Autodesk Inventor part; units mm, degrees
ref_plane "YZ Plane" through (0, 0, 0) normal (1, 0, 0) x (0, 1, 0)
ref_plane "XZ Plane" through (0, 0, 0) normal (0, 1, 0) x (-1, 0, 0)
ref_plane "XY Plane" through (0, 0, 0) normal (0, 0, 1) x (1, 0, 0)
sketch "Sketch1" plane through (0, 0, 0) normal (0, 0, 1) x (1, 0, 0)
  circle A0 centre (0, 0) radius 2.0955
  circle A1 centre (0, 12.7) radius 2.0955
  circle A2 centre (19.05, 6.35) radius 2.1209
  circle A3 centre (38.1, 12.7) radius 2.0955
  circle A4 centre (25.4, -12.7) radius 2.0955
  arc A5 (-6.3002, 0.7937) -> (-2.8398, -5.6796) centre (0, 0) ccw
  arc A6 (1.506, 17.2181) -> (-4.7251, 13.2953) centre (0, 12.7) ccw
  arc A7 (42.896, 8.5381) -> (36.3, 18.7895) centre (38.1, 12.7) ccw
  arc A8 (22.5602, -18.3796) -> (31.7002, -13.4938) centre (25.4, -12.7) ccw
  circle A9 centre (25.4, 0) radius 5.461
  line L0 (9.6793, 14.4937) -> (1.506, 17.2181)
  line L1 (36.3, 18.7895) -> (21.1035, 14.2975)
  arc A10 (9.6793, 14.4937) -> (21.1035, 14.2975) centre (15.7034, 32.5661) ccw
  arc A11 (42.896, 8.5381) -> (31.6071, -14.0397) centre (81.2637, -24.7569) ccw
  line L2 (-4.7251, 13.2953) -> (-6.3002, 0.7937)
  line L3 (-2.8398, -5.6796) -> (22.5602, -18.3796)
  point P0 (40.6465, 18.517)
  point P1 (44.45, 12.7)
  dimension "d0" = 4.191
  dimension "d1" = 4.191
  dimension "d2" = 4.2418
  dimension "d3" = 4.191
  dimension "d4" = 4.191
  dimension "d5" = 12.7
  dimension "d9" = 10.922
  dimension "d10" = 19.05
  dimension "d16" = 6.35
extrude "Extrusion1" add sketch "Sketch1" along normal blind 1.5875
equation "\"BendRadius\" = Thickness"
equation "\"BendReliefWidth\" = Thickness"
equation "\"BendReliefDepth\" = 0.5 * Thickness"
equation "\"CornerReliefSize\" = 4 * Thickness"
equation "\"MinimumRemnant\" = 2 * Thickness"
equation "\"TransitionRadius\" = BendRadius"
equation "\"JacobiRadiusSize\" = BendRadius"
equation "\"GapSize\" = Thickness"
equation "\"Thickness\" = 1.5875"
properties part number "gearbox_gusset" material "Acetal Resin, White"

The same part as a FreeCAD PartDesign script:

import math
import FreeCAD as App
import Part
import Sketcher
Q = App.Units.Quantity

doc = App.newDocument("Part")
body = doc.addObject("PartDesign::Body", "Body")

# Sketch on XY plane
sketch1 = body.newObject("Sketcher::SketchObject", "Sketch")
sketch1.AttachmentSupport = (doc.getObject("XY_Plane"), [""])
sketch1.MapMode = "FlatFace"
sketch1.addGeometry(Part.LineSegment(App.Vector(-4.7, 13.3, 0), App.Vector(-6.3, 0.8, 0)), False)
sketch1.addGeometry(Part.ArcOfCircle(Part.Circle(App.Vector(0, 0, 0), App.Vector(0, 0, 1), 6.3), math.radians(173), math.radians(243)), False)
sketch1.addGeometry(Part.LineSegment(App.Vector(-2.8, -5.7, 0), App.Vector(22.6, -18.4, 0)), False)
sketch1.addGeometry(Part.ArcOfCircle(Part.Circle(App.Vector(25.4, -12.7, 0), App.Vector(0, 0, 1), 6.3), math.radians(-117), math.radians(-12)), False)
sketch1.addGeometry(Part.ArcOfCircle(Part.Circle(App.Vector(81.3, -24.8, 0), App.Vector(0, 0, 1), 50.8), math.radians(139), math.radians(168)), False)
sketch1.addGeometry(Part.ArcOfCircle(Part.Circle(App.Vector(38.1, 12.7, 0), App.Vector(0, 0, 1), 6.4), math.radians(-41), math.radians(106)), False)
sketch1.addGeometry(Part.LineSegment(App.Vector(36.3, 18.8, 0), App.Vector(21.1, 14.3, 0)), False)
sketch1.addGeometry(Part.ArcOfCircle(Part.Circle(App.Vector(15.7, 32.6, 0), App.Vector(0, 0, 1), 19), math.radians(-108), math.radians(-74)), False)
sketch1.addGeometry(Part.LineSegment(App.Vector(9.7, 14.5, 0), App.Vector(1.5, 17.2, 0)), False)
sketch1.addGeometry(Part.ArcOfCircle(Part.Circle(App.Vector(0, 12.7, 0), App.Vector(0, 0, 1), 4.8), math.radians(72), math.radians(173)), False)
sketch1.addGeometry(Part.Circle(App.Vector(25.4, -12.7, 0), App.Vector(0, 0, 1), 2.1), False)
sketch1.addGeometry(Part.Circle(App.Vector(0, 0, 0), App.Vector(0, 0, 1), 2.1), False)
sketch1.addGeometry(Part.Circle(App.Vector(19.1, 6.3, 0), App.Vector(0, 0, 1), 2.1), False)
sketch1.addGeometry(Part.Circle(App.Vector(0, 12.7, 0), App.Vector(0, 0, 1), 2.1), False)
sketch1.addGeometry(Part.Circle(App.Vector(25.4, 0, 0), App.Vector(0, 0, 1), 5.5), False)
sketch1.addGeometry(Part.Circle(App.Vector(38.1, 12.7, 0), App.Vector(0, 0, 1), 2.1), False)
sketch1.addConstraint(Sketcher.Constraint("Tangent", 0, 2, 1, 1))
sketch1.addConstraint(Sketcher.Constraint("Tangent", 1, 2, 2, 1))
sketch1.addConstraint(Sketcher.Constraint("Tangent", 2, 2, 3, 1))
sketch1.addConstraint(Sketcher.Constraint("Tangent", 3, 2, 4, 2))
sketch1.addConstraint(Sketcher.Constraint("Tangent", 4, 1, 5, 1))
sketch1.addConstraint(Sketcher.Constraint("Tangent", 5, 2, 6, 1))
sketch1.addConstraint(Sketcher.Constraint("Tangent", 6, 2, 7, 2))
sketch1.addConstraint(Sketcher.Constraint("Tangent", 7, 1, 8, 1))
sketch1.addConstraint(Sketcher.Constraint("Tangent", 8, 2, 9, 1))
sketch1.addConstraint(Sketcher.Constraint("Tangent", 9, 2, 0, 1))
sketch1.addConstraint(Sketcher.Constraint("Coincident", 1, 3, -1, 1))
sketch1.addConstraint(Sketcher.Constraint("Coincident", 11, 3, -1, 1))
sketch1.addConstraint(Sketcher.Constraint("Coincident", 10, 3, 3, 3))
sketch1.addConstraint(Sketcher.Constraint("Coincident", 13, 3, 9, 3))
sketch1.addConstraint(Sketcher.Constraint("Coincident", 15, 3, 5, 3))
sketch1.addConstraint(Sketcher.Constraint("Equal", 1, 3))
sketch1.addConstraint(Sketcher.Constraint("Equal", 3, 5))
sketch1.addConstraint(Sketcher.Constraint("Equal", 10, 11))
sketch1.addConstraint(Sketcher.Constraint("Equal", 11, 13))
sketch1.addConstraint(Sketcher.Constraint("Equal", 13, 15))
sketch1.addConstraint(Sketcher.Constraint("PointOnObject", 9, 3, -2))
sketch1.addConstraint(Sketcher.Constraint("PointOnObject", 14, 3, -1))
sketch1.addConstraint(Sketcher.Constraint("Horizontal", 5, 3, 9, 3))
sketch1.addConstraint(Sketcher.Constraint("Vertical", 10, 3, 14, 3))
sketch1.addConstraint(Sketcher.Constraint("Diameter", 14, Q("0.43 in")))
sketch1.addConstraint(Sketcher.Constraint("Radius", 1, Q("0.25 in")))
sketch1.addConstraint(Sketcher.Constraint("Radius", 7, Q("0.75 in")))
sketch1.addConstraint(Sketcher.Constraint("Diameter", 10, Q("0.165 in")))
sketch1.addConstraint(Sketcher.Constraint("Diameter", 12, Q("0.167 in")))
sketch1.addConstraint(Sketcher.Constraint("Radius", 4, Q("2 in")))
sketch1.addConstraint(Sketcher.Constraint("DistanceY", 3, 3, -1, 1, Q("0.5 in")))
sketch1.addConstraint(Sketcher.Constraint("DistanceY", -1, 1, 5, 3, Q("0.5 in")))
sketch1.addConstraint(Sketcher.Constraint("DistanceX", 3, 3, 5, 3, Q("0.5 in")))
sketch1.addConstraint(Sketcher.Constraint("DistanceX", -1, 1, 12, 3, Q("0.75 in")))
sketch1.addConstraint(Sketcher.Constraint("DistanceY", -1, 1, 12, 3, Q("0.25 in")))
sketch1.addConstraint(Sketcher.Constraint("DistanceX", 12, 3, 3, 3, Q("0.25 in")))
sketch1.addConstraint(Sketcher.Constraint("Radius", 9, Q("0.1875 in")))
sketch1.addConstraint(Sketcher.Constraint("Distance", 8, Q("0.3392 in")))
sketch1.addConstraint(Sketcher.Constraint("DistanceY", -1, 1, 6, 2, Q("0.5629 in")))
pad1 = body.newObject("PartDesign::Pad", "Pad")
pad1.Profile = sketch1
pad1.Length = Q("0.0625 in")

doc.recompute()
